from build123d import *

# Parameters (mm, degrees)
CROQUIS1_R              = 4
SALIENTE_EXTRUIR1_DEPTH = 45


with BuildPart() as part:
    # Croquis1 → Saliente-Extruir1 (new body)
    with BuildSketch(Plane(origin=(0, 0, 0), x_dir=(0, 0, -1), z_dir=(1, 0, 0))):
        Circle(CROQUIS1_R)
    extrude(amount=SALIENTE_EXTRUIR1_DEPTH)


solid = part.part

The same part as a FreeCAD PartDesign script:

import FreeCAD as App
import Part
import Sketcher

doc = App.newDocument("Part")
body = doc.addObject("PartDesign::Body", "Body")

sketch1 = body.newObject("Sketcher::SketchObject", "Sketch")
sketch1.AttachmentSupport = (doc.getObject("YZ_Plane"), [""])
sketch1.MapMode = "FlatFace"
sketch1.addGeometry(Part.Circle(App.Vector(0, 0, 0), App.Vector(0, 0, 1), 4), False)
sketch1.addConstraint([
    Sketcher.Constraint("Coincident", 0, 3, -1, 1),
    Sketcher.Constraint("Diameter", 0, 8.0),
])
pad1 = body.newObject("PartDesign::Pad", "Pad")
pad1.Profile = sketch1
pad1.Length = 45

doc.recompute()
